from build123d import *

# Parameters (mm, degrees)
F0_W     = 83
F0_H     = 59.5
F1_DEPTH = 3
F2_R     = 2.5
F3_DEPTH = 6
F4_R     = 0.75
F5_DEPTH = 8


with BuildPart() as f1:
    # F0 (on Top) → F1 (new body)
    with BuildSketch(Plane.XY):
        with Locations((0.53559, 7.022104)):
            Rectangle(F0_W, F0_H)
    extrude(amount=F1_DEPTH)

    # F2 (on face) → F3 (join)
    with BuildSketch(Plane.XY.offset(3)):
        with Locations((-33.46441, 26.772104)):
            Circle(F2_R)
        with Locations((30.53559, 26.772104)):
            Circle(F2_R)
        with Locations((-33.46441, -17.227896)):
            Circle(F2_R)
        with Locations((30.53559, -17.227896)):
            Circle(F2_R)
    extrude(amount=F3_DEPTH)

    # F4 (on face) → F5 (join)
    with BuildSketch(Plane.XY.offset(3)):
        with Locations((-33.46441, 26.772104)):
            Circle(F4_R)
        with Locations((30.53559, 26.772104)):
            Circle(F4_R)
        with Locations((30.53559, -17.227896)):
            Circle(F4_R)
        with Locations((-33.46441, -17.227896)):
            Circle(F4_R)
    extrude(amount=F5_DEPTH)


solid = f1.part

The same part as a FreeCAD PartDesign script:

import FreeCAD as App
import Part
import Sketcher
from FreeCAD import Vector
Q = App.Units.Quantity

doc = App.newDocument("Part")
params = doc.addObject("Spreadsheet::Sheet", "Params")
for row, (alias, value) in enumerate([
    ("sketch1_width", "83 mm"),
    ("sketch1_height", "59.5 mm"),
    ("pad1_length", "3 mm"),
    ("sketch2_diameter", "5 mm"),
    ("pad2_length", "6 mm"),
    ("sketch3_diameter", "1.5 mm"),
    ("pad3_length", "8 mm"),
], start=1):
    params.set(f"A{row}", alias)
    params.set(f"B{row}", "=" + value)
    params.setAlias(f"B{row}", alias)

body = doc.addObject("PartDesign::Body", "Body")

sketch1 = doc.addObject("Sketcher::SketchObject", "Sketch")
body.addObject(sketch1)
sketch1.AttachmentSupport = (doc.XY_Plane, [""])
sketch1.MapMode = "FlatFace"
sketch1.addGeometry([
    Part.LineSegment(Vector(-41, 37, 0), Vector(-41, -23, 0)),
    Part.LineSegment(Vector(-41, -23, 0), Vector(42, -23, 0)),
    Part.LineSegment(Vector(42, -23, 0), Vector(42, 37, 0)),
    Part.LineSegment(Vector(42, 37, 0), Vector(-41, 37, 0)),
], False)
sketch1.addConstraint([
    Sketcher.Constraint("Coincident", 0, 2, 1, 1),
    Sketcher.Constraint("Coincident", 1, 2, 2, 1),
    Sketcher.Constraint("Coincident", 2, 2, 3, 1),
    Sketcher.Constraint("Coincident", 3, 2, 0, 1),
    Sketcher.Constraint("Vertical", 0),
    Sketcher.Constraint("Horizontal", 1),
    Sketcher.Constraint("Vertical", 2),
    Sketcher.Constraint("Horizontal", 3),
    Sketcher.Constraint("DistanceX", 1, 1, 1, 2, Q("83 mm")),
    Sketcher.Constraint("DistanceY", 0, 2, 0, 1, Q("59.5 mm")),
    Sketcher.Constraint("DistanceX", 0, 2, -1, 1, Q("40.96441 mm")),
    Sketcher.Constraint("DistanceY", 0, 2, -1, 1, Q("22.727896 mm")),
])
sketch1.setExpression("Constraints[8]", "Params.sketch1_width")
sketch1.setExpression("Constraints[9]", "Params.sketch1_height")
pad1 = doc.addObject("PartDesign::Pad", "Pad")
body.addObject(pad1)
pad1.Profile = sketch1
pad1.setExpression("Length", "Params.pad1_length")

sketch2 = doc.addObject("Sketcher::SketchObject", "Sketch001")
body.addObject(sketch2)
sketch2.AttachmentSupport = (doc.XY_Plane, [""])
sketch2.MapMode = "FlatFace"
sketch2.AttachmentOffset = App.Placement(Vector(0, 0, 3), App.Rotation())
sketch2.addGeometry([
    Part.Circle(Vector(-33.5, 26.8, 0), Vector(0, 0, 1), 2.5),
    Part.Circle(Vector(30.5, 26.8, 0), Vector(0, 0, 1), 2.5),
    Part.Circle(Vector(-33.5, -17.2, 0), Vector(0, 0, 1), 2.5),
    Part.Circle(Vector(30.5, -17.2, 0), Vector(0, 0, 1), 2.5),
], False)
sketch2.addConstraint([
    Sketcher.Constraint("Equal", 0, 1),
    Sketcher.Constraint("Equal", 1, 2),
    Sketcher.Constraint("Equal", 2, 3),
    Sketcher.Constraint("Horizontal", 0, 3, 1, 3),
    Sketcher.Constraint("Horizontal", 2, 3, 3, 3),
    Sketcher.Constraint("Vertical", 0, 3, 2, 3),
    Sketcher.Constraint("Vertical", 1, 3, 3, 3),
    Sketcher.Constraint("Diameter", 0, Q("5 mm")),
    Sketcher.Constraint("DistanceX", 0, 3, 1, 3, Q("64 mm")),
    Sketcher.Constraint("DistanceY", 2, 3, 0, 3, Q("44 mm")),
    Sketcher.Constraint("DistanceX", 0, 3, -1, 1, Q("33.46441 mm")),
    Sketcher.Constraint("DistanceY", -1, 1, 0, 3, Q("26.772104 mm")),
])
sketch2.setExpression("Constraints[7]", "Params.sketch2_diameter")
pad2 = doc.addObject("PartDesign::Pad", "Pad001")
body.addObject(pad2)
pad2.Profile = sketch2
pad2.setExpression("Length", "Params.pad2_length")

sketch3 = doc.addObject("Sketcher::SketchObject", "Sketch002")
body.addObject(sketch3)
sketch3.AttachmentSupport = (doc.XY_Plane, [""])
sketch3.MapMode = "FlatFace"
sketch3.AttachmentOffset = App.Placement(Vector(0, 0, 3), App.Rotation())
sketch3.addGeometry([
    Part.Circle(Vector(-33.5, 26.8, 0), Vector(0, 0, 1), 0.8),
    Part.Circle(Vector(30.5, 26.8, 0), Vector(0, 0, 1), 0.8),
    Part.Circle(Vector(30.5, -17.2, 0), Vector(0, 0, 1), 0.8),
    Part.Circle(Vector(-33.5, -17.2, 0), Vector(0, 0, 1), 0.8),
], False)
sketch3.addConstraint([
    Sketcher.Constraint("Equal", 0, 1),
    Sketcher.Constraint("Equal", 1, 2),
    Sketcher.Constraint("Equal", 2, 3),
    Sketcher.Constraint("Horizontal", 0, 3, 1, 3),
    Sketcher.Constraint("Horizontal", 2, 3, 3, 3),
    Sketcher.Constraint("Vertical", 1, 3, 2, 3),
    Sketcher.Constraint("Vertical", 0, 3, 3, 3),
    Sketcher.Constraint("Diameter", 0, Q("1.5 mm")),
    Sketcher.Constraint("DistanceX", 0, 3, 1, 3, Q("64 mm")),
    Sketcher.Constraint("DistanceY", 2, 3, 1, 3, Q("44 mm")),
    Sketcher.Constraint("DistanceX", 0, 3, -1, 1, Q("33.46441 mm")),
    Sketcher.Constraint("DistanceY", -1, 1, 0, 3, Q("26.772104 mm")),
])
sketch3.setExpression("Constraints[7]", "Params.sketch3_diameter")
pad3 = doc.addObject("PartDesign::Pad", "Pad002")
body.addObject(pad3)
pad3.Profile = sketch3
pad3.setExpression("Length", "Params.pad3_length")

doc.recompute()
